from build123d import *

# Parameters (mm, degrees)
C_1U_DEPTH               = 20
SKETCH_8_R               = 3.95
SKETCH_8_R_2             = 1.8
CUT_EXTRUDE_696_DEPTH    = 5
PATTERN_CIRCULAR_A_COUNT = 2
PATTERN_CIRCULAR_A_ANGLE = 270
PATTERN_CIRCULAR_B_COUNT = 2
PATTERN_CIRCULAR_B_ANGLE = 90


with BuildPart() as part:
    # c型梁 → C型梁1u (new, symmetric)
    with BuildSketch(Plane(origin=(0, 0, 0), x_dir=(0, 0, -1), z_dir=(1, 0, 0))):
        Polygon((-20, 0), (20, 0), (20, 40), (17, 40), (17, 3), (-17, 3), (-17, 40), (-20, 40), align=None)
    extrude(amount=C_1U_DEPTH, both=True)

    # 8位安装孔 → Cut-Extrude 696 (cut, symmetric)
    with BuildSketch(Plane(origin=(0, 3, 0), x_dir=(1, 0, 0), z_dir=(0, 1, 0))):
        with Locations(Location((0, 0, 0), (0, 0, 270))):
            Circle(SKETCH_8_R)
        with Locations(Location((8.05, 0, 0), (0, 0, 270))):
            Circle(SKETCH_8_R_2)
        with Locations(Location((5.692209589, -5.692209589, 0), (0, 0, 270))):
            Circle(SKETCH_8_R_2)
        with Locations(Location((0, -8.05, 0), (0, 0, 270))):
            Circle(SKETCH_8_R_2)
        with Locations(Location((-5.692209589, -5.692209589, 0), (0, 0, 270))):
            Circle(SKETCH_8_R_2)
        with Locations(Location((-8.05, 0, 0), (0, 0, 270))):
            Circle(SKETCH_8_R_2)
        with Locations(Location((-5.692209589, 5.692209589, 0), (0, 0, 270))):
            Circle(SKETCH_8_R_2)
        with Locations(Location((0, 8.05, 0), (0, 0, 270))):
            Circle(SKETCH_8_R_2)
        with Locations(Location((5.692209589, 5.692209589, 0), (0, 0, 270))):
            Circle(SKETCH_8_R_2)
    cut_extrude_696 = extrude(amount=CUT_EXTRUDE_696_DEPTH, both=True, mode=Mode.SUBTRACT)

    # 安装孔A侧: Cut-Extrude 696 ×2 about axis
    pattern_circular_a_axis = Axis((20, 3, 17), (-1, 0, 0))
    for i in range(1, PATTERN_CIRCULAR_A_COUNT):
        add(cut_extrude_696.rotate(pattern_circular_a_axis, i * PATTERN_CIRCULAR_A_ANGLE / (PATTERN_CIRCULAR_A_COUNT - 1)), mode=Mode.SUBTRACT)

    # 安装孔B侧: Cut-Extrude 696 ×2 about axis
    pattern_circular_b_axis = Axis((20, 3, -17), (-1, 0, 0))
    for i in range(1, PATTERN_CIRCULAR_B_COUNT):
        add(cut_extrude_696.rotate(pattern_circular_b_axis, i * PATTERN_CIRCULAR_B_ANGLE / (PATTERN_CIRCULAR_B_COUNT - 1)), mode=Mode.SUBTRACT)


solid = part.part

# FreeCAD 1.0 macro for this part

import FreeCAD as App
import Part
import Sketcher

doc = App.newDocument("Part")
body = doc.addObject("PartDesign::Body", "Body")

# Sketch on YZ plane
sketch1 = body.newObject("Sketcher::SketchObject", "Sketch")
sketch1.AttachmentSupport = (doc.getObject("YZ_Plane"), [""])
sketch1.MapMode = "FlatFace"
sketch1.addGeometry([
    Part.LineSegment(App.Vector(0, 20, 0), App.Vector(0, -20, 0)),  # 0
    Part.LineSegment(App.Vector(0, -20, 0), App.Vector(40, -20, 0)),  # 1
    Part.LineSegment(App.Vector(40, -20, 0), App.Vector(40, -17, 0)),  # 2
    Part.LineSegment(App.Vector(40, -17, 0), App.Vector(3, -17, 0)),  # 3
    Part.LineSegment(App.Vector(3, -17, 0), App.Vector(3, 17, 0)),  # 4
    Part.LineSegment(App.Vector(3, 17, 0), App.Vector(40, 17, 0)),  # 5
    Part.LineSegment(App.Vector(40, 17, 0), App.Vector(40, 20, 0)),  # 6
    Part.LineSegment(App.Vector(40, 20, 0), App.Vector(0, 20, 0)),  # 7
], False)
sketch1.addConstraint([
    Sketcher.Constraint("Coincident", 0, 2, 1, 1),
    Sketcher.Constraint("Coincident", 1, 2, 2, 1),
    Sketcher.Constraint("Coincident", 2, 2, 3, 1),
    Sketcher.Constraint("Coincident", 3, 2, 4, 1),
    Sketcher.Constraint("Coincident", 4, 2, 5, 1),
    Sketcher.Constraint("Coincident", 5, 2, 6, 1),
    Sketcher.Constraint("Coincident", 6, 2, 7, 1),
    Sketcher.Constraint("Coincident", 7, 2, 0, 1),
    Sketcher.Constraint("Vertical", 0),
    Sketcher.Constraint("Horizontal", 1),
    Sketcher.Constraint("Vertical", 2),
    Sketcher.Constraint("Horizontal", 3),
    Sketcher.Constraint("Vertical", 4),
    Sketcher.Constraint("Horizontal", 5),
    Sketcher.Constraint("Vertical", 6),
    Sketcher.Constraint("Horizontal", 7),
    Sketcher.Constraint("Symmetric", 0, 2, 7, 2, -1, 1),
    Sketcher.Constraint("Symmetric", 2, 2, 5, 2, -1),
    Sketcher.Constraint("Equal", 7, 0),
    Sketcher.Constraint("DistanceX", 1, 1, 1, 2, 40.0),
    Sketcher.Constraint("DistanceX", 3, 2, 3, 1, 37.0),
    Sketcher.Constraint("DistanceY", 2, 1, 2, 2, 3.0),
])
pad1 = body.newObject("PartDesign::Pad", "Pad")
pad1.Profile = sketch1
pad1.Length = 40
pad1.Midplane = True

# Sketch on XZ plane
sketch2 = body.newObject("Sketcher::SketchObject", "Sketch001")
sketch2.AttachmentSupport = (doc.getObject("XZ_Plane"), [""])
sketch2.MapMode = "FlatFace"
sketch2.AttachmentOffset = App.Placement(App.Vector(0, 0, -3), App.Rotation())
sketch2.addGeometry([
    Part.Circle(App.Vector(0, 0, 0), App.Vector(0, 0, 1), 4),  # 0
    Part.Circle(App.Vector(8.1, 0, 0), App.Vector(0, 0, 1), 1.8),  # 1
    Part.Circle(App.Vector(5.7, 5.7, 0), App.Vector(0, 0, 1), 1.8),  # 2
    Part.Circle(App.Vector(0, 8.1, 0), App.Vector(0, 0, 1), 1.8),  # 3
    Part.Circle(App.Vector(-5.7, 5.7, 0), App.Vector(0, 0, 1), 1.8),  # 4
    Part.Circle(App.Vector(-8.1, 0, 0), App.Vector(0, 0, 1), 1.8),  # 5
    Part.Circle(App.Vector(-5.7, -5.7, 0), App.Vector(0, 0, 1), 1.8),  # 6
    Part.Circle(App.Vector(0, -8.1, 0), App.Vector(0, 0, 1), 1.8),  # 7
    Part.Circle(App.Vector(5.7, -5.7, 0), App.Vector(0, 0, 1), 1.8),  # 8
], False)
sketch2.addConstraint([
    Sketcher.Constraint("Coincident", 0, 3, -1, 1),
    Sketcher.Constraint("Equal", 1, 2),
    Sketcher.Constraint("Equal", 2, 3),
    Sketcher.Constraint("Equal", 3, 4),
    Sketcher.Constraint("Equal", 4, 5),
    Sketcher.Constraint("Equal", 5, 6),
    Sketcher.Constraint("Equal", 6, 7),
    Sketcher.Constraint("Equal", 7, 8),
    Sketcher.Constraint("Symmetric", 1, 3, 5, 3, -1, 1),
    Sketcher.Constraint("Symmetric", 2, 3, 6, 3, -1, 1),
    Sketcher.Constraint("Symmetric", 3, 3, 7, 3, -1, 1),
    Sketcher.Constraint("Symmetric", 4, 3, 8, 3, -1, 1),
    Sketcher.Constraint("Symmetric", 2, 3, 4, 3, -2),
    Sketcher.Constraint("PointOnObject", 1, 3, -1),
    Sketcher.Constraint("PointOnObject", 3, 3, -2),
    Sketcher.Constraint("Diameter", 0, 7.9),
    Sketcher.Constraint("Diameter", 1, 3.6),
    Sketcher.Constraint("DistanceX", 5, 3, 1, 3, 16.1),
    Sketcher.Constraint("DistanceY", -1, 1, 3, 3, 8.05),
    Sketcher.Constraint("DistanceX", -1, 1, 2, 3, 5.69221),
    Sketcher.Constraint("DistanceY", -1, 1, 2, 3, 5.69221),
])
pocket1 = body.newObject("PartDesign::Pocket", "Pocket")
pocket1.Profile = sketch2
pocket1.Length = 10
pocket1.Midplane = True
doc.recompute()

datumline = body.newObject("PartDesign::Line", "DatumLine")
datumline.Placement = App.Placement(App.Vector(0, 3, 17), App.Rotation(App.Vector(0, 0, 1), App.Vector(-1, 0, 0)))
polarpattern = body.newObject("PartDesign::PolarPattern", "PolarPattern")
polarpattern.Originals = [pocket1]
polarpattern.Axis = (datumline, [""])
polarpattern.Angle = 270
polarpattern.Occurrences = 2
body.Tip = polarpattern
doc.recompute()

datumline2 = body.newObject("PartDesign::Line", "DatumLine001")
datumline2.Placement = App.Placement(App.Vector(0, 3, -17), App.Rotation(App.Vector(0, 0, 1), App.Vector(-1, 0, 0)))
polarpattern2 = body.newObject("PartDesign::PolarPattern", "PolarPattern001")
polarpattern2.Originals = [pocket1]
polarpattern2.Axis = (datumline2, [""])
polarpattern2.Angle = 90
polarpattern2.Occurrences = 2
body.Tip = polarpattern2

doc.recompute()
